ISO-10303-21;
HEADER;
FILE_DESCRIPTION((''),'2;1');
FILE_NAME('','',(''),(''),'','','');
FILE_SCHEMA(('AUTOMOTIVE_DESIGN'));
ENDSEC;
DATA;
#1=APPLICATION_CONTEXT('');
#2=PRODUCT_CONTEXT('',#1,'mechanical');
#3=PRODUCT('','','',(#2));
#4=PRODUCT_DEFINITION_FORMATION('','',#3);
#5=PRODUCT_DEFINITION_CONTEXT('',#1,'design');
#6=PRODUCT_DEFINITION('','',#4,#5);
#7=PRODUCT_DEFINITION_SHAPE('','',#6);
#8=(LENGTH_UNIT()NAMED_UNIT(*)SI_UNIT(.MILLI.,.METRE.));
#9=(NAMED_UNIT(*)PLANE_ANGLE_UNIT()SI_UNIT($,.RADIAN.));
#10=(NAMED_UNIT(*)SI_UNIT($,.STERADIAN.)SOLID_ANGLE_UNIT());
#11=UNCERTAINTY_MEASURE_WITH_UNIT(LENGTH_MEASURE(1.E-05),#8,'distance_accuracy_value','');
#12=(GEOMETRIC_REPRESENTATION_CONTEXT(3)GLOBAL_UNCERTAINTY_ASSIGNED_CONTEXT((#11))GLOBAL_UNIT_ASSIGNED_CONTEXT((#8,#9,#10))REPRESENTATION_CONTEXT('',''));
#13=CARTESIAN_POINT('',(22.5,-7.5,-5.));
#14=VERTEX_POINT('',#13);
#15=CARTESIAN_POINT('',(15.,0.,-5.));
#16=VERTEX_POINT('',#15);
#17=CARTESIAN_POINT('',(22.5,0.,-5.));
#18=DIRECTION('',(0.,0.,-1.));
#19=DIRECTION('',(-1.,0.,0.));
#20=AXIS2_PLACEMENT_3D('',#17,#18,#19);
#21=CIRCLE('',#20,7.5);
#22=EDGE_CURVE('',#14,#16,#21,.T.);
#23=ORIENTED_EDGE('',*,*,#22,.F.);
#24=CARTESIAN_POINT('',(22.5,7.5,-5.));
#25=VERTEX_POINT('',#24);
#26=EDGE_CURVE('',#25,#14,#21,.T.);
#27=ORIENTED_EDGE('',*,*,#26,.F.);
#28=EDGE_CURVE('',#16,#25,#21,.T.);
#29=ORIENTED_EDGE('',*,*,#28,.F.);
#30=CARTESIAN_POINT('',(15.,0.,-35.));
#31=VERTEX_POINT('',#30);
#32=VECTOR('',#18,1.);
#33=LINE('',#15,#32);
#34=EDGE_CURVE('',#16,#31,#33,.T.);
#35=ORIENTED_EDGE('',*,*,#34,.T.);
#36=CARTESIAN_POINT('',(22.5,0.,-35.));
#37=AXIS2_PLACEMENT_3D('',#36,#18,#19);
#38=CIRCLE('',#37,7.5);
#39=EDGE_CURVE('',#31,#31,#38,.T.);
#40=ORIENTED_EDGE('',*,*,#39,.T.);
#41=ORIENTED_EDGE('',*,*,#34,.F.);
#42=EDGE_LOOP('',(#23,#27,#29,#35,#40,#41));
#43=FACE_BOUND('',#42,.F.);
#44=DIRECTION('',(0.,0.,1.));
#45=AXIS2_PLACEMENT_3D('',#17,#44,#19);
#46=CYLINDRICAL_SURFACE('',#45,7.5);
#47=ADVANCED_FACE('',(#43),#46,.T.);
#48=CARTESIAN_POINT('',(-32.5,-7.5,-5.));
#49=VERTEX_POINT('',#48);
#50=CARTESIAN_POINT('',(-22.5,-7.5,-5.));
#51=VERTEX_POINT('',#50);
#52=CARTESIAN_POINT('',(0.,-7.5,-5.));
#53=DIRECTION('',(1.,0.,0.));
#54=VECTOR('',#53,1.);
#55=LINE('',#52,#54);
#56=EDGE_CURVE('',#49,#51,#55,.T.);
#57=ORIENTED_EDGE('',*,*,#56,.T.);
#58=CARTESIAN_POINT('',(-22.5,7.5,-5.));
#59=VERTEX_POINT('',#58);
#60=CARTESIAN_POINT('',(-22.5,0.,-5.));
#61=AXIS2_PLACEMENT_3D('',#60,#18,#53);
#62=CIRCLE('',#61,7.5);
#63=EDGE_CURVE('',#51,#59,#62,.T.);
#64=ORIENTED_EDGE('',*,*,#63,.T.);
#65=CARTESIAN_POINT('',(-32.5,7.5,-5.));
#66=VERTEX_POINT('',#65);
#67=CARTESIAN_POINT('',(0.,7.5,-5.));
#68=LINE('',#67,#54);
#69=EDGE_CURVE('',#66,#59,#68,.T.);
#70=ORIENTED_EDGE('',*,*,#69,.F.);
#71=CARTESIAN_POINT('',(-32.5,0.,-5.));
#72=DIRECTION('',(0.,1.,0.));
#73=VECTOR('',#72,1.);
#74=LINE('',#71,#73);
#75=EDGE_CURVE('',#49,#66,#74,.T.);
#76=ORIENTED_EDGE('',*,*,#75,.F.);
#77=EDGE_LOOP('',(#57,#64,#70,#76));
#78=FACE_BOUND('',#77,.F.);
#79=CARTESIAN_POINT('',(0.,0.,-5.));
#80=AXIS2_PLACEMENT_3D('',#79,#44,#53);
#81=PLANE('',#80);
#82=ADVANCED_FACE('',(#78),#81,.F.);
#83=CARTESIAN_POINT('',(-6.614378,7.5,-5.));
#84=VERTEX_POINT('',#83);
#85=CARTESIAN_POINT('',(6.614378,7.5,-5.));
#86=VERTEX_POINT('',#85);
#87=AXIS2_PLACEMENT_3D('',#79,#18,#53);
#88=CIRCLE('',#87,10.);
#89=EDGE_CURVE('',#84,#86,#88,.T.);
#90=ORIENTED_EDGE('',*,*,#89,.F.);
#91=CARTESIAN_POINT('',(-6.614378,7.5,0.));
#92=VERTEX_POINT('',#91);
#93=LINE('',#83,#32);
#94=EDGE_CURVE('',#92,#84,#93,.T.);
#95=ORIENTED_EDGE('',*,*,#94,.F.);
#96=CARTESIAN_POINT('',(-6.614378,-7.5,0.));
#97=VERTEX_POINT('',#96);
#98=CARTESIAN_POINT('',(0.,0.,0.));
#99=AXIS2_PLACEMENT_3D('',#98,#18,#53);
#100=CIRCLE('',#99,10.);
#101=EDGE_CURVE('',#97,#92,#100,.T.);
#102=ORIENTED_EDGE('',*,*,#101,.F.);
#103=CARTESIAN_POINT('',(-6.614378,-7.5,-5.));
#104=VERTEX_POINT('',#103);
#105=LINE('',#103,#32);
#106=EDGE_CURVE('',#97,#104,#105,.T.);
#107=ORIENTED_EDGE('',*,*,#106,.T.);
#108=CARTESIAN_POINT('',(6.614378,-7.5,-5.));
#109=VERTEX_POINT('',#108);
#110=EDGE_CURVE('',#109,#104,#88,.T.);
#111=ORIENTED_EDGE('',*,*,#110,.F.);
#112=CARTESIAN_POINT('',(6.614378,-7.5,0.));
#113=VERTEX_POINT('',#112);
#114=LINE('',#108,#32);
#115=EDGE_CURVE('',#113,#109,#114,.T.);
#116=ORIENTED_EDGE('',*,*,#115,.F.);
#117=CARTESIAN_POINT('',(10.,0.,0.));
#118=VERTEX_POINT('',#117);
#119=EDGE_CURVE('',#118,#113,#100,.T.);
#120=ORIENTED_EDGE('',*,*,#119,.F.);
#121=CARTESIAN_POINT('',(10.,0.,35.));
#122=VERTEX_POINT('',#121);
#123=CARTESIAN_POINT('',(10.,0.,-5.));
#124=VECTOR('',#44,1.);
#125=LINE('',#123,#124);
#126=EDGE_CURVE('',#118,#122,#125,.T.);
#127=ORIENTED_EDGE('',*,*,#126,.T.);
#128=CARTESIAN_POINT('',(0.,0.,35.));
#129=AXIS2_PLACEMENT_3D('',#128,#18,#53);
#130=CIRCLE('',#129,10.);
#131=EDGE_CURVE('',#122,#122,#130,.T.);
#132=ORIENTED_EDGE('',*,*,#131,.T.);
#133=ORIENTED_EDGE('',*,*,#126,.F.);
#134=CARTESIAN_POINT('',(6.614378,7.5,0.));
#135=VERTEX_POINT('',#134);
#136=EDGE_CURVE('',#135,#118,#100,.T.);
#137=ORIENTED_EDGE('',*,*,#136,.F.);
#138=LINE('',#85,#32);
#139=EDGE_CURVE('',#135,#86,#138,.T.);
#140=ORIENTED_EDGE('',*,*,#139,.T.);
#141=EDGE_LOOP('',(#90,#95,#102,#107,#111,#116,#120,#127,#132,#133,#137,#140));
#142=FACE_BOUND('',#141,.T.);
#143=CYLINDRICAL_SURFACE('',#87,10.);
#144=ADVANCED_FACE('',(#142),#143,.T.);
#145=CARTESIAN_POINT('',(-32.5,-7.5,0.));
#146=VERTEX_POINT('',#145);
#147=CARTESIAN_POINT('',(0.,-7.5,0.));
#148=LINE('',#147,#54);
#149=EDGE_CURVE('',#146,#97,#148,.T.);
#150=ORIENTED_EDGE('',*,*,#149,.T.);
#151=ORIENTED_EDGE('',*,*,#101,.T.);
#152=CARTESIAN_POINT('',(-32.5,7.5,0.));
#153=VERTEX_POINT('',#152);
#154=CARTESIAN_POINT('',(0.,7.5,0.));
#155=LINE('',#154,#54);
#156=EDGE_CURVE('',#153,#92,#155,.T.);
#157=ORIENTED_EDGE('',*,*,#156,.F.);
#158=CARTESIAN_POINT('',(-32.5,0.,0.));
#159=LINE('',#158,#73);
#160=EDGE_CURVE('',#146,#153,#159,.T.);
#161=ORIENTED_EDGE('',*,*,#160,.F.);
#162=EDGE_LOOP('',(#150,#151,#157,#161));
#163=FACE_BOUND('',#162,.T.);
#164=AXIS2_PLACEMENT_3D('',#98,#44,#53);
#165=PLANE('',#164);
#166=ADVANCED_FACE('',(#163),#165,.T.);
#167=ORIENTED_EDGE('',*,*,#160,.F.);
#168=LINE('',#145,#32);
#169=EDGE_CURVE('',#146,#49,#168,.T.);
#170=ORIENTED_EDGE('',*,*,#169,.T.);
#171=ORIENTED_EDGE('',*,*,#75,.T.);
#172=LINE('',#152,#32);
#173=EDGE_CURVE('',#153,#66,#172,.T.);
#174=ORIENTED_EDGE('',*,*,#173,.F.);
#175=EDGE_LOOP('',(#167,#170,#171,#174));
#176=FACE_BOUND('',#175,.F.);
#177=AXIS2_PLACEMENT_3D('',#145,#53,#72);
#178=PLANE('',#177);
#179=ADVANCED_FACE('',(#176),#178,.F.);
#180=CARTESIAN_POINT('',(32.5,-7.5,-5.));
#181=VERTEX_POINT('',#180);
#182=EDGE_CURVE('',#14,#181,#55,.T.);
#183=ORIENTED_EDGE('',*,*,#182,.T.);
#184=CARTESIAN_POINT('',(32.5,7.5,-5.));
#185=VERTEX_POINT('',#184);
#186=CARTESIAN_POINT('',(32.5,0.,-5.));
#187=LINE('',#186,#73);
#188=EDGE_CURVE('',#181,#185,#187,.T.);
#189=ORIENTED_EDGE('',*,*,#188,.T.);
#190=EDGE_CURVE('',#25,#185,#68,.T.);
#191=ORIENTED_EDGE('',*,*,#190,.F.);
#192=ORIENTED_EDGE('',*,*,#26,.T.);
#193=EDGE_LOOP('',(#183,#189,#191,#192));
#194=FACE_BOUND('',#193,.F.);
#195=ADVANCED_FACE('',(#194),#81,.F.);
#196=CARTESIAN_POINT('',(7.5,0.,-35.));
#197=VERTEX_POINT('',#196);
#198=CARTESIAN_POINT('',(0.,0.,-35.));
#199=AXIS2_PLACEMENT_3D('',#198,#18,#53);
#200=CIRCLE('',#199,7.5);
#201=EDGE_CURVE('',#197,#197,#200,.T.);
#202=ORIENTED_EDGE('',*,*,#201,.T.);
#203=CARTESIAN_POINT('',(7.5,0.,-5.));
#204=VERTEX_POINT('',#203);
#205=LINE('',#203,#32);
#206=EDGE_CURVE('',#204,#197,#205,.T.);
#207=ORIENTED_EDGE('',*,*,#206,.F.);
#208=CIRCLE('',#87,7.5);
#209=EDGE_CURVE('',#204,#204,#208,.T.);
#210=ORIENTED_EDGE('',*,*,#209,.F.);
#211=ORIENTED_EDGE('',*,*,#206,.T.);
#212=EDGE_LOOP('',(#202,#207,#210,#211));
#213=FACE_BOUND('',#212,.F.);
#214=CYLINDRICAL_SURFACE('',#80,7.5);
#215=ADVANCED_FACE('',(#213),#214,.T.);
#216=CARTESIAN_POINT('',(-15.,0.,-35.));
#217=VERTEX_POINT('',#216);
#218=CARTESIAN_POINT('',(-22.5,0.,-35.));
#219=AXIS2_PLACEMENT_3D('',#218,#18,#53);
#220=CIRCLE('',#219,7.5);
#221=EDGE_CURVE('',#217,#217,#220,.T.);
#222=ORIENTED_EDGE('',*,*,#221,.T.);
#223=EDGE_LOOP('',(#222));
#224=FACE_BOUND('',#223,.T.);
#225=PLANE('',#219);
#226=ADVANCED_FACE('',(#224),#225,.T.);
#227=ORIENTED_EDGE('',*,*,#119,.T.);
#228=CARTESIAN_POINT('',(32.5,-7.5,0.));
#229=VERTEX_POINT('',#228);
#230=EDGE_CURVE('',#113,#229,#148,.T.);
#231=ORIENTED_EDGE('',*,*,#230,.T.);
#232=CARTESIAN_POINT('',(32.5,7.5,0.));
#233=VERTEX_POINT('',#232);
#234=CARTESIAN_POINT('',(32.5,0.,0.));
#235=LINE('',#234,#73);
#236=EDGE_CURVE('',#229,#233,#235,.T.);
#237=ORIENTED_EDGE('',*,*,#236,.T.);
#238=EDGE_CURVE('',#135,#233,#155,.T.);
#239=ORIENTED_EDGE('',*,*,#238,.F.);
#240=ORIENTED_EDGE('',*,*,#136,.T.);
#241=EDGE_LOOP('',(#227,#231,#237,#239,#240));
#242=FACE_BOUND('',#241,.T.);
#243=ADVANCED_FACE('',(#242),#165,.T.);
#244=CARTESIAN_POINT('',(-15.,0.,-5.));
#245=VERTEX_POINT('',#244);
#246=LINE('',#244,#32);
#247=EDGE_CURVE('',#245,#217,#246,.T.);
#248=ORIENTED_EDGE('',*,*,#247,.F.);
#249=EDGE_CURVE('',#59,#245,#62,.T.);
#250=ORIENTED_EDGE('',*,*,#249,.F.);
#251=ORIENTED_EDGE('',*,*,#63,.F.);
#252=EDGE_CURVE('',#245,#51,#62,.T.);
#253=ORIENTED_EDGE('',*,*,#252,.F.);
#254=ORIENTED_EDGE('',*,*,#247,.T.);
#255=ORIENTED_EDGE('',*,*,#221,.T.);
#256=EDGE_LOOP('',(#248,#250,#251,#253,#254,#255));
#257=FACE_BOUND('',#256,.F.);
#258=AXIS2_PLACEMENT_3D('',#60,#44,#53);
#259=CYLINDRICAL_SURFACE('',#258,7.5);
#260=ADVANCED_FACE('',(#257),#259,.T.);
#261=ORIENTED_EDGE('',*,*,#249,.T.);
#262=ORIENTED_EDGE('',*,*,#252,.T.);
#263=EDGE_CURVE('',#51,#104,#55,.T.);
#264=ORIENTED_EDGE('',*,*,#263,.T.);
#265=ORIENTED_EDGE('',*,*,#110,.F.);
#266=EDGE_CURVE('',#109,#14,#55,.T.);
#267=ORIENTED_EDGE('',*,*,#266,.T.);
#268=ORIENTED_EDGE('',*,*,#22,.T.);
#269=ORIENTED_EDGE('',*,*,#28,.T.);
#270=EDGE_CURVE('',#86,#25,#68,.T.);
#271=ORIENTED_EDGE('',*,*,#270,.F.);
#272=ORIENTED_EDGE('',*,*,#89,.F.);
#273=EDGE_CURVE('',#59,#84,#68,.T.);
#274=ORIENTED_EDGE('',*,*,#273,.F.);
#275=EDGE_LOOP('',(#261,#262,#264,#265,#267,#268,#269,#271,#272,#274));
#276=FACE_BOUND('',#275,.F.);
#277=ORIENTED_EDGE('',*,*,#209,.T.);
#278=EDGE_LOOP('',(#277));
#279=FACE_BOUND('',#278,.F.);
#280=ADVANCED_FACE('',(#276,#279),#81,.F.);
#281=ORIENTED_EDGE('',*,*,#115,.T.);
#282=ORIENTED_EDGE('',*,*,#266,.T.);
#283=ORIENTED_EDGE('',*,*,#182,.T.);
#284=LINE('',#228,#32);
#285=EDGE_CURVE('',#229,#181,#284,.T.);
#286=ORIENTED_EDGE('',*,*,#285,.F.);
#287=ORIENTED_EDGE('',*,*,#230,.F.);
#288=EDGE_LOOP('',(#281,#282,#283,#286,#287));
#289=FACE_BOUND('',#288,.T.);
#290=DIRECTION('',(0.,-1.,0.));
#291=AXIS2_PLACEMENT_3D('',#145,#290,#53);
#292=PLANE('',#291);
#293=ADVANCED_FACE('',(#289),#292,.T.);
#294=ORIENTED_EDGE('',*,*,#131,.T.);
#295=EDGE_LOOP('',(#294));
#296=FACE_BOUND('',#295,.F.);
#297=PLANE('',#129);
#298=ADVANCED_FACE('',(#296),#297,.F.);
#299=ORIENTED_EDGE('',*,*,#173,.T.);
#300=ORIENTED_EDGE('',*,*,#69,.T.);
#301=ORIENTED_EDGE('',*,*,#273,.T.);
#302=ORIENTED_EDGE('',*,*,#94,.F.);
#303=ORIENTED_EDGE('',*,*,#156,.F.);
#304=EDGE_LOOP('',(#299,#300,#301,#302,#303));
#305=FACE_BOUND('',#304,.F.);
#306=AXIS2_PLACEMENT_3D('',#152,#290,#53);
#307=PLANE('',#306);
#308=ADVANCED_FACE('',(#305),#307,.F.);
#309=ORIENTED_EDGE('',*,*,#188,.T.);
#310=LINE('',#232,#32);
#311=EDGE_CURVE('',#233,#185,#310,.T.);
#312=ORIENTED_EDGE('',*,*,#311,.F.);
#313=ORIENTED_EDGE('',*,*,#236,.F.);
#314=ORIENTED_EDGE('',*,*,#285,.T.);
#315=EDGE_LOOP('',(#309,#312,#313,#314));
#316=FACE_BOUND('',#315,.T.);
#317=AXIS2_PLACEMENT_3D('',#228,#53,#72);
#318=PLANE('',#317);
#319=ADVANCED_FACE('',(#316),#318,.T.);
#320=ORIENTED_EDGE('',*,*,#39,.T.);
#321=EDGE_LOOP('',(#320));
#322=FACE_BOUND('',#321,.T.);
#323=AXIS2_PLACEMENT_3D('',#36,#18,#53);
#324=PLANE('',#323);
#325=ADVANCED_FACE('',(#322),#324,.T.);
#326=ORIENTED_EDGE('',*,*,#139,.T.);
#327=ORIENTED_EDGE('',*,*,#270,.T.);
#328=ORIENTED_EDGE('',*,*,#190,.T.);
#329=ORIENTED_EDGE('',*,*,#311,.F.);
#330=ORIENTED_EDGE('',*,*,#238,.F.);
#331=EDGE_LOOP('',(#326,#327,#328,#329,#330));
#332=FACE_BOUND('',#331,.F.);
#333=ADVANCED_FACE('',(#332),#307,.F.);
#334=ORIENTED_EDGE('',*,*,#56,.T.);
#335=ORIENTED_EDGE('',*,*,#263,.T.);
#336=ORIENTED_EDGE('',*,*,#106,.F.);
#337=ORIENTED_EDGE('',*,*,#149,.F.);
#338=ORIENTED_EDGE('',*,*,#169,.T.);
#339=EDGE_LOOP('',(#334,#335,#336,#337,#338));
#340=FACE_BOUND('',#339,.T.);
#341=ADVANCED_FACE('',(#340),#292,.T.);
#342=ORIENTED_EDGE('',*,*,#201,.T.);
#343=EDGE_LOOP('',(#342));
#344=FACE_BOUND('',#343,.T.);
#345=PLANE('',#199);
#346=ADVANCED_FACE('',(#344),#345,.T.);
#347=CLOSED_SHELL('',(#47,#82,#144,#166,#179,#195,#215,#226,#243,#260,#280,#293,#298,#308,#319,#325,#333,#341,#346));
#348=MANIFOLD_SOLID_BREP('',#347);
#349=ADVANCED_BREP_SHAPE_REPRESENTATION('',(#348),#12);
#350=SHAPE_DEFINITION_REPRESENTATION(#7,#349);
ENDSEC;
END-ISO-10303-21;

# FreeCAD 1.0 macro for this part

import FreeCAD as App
import Part
import Sketcher

V = App.Vector
Q = App.Units.Quantity


def add_polygon(sketch, points):
    """Adds a closed chain of lines whose ends are joined by coincident constraints."""
    first, n = sketch.GeometryCount, len(points)
    for a, b in zip(points, points[1:] + points[:1]):
        sketch.addGeometry(Part.LineSegment(App.Vector(*a, 0), App.Vector(*b, 0)), False)
    for i in range(n):
        sketch.addConstraint(Sketcher.Constraint("Coincident", first + i, 2, first + (i + 1) % n, 1))

doc = App.newDocument("Part")
params = doc.addObject("Spreadsheet::Sheet", "Params")
for row, (alias, value) in enumerate([
    ("sketch1_width", "65 mm"),
    ("sketch1_height", "15 mm"),
    ("pad1_length", "5 mm"),
    ("sketch2_diameter", "20 mm"),
    ("pad2_length", "40 mm"),
    ("sketch3_diameter", "15 mm"),
    ("pad3_length", "30 mm"),
], start=1):
    params.set(f"A{row}", alias)
    params.set(f"B{row}", "=" + value)
    params.setAlias(f"B{row}", alias)

body = doc.addObject("PartDesign::Body", "Body")

# Sketch on XY plane
sketch1 = doc.addObject("Sketcher::SketchObject", "Sketch")
body.addObject(sketch1)
sketch1.AttachmentSupport = (doc.XY_Plane, [""])
sketch1.MapMode = "FlatFace"
add_polygon(sketch1, [(-32.5, 7.5), (-32.5, -7.5), (32.5, -7.5), (32.5, 7.5)])  # lines 0-3
sketch1.addConstraint(Sketcher.Constraint("Vertical", 0))
sketch1.addConstraint(Sketcher.Constraint("Horizontal", 1))
sketch1.addConstraint(Sketcher.Constraint("Vertical", 2))
sketch1.addConstraint(Sketcher.Constraint("Horizontal", 3))
sketch1.addConstraint(Sketcher.Constraint("Symmetric", 0, 2, 2, 2, -1, 1))
sketch1.addConstraint(Sketcher.Constraint("DistanceX", 1, 1, 1, 2, Q("65 mm")))
sketch1.addConstraint(Sketcher.Constraint("DistanceY", 0, 2, 0, 1, Q("15 mm")))
sketch1.setExpression("Constraints[9]", "Params.sketch1_width")
sketch1.setExpression("Constraints[10]", "Params.sketch1_height")
pad1 = doc.addObject("PartDesign::Pad", "Pad")
body.addObject(pad1)
pad1.Profile = sketch1
pad1.setExpression("Length", "Params.pad1_length")
pad1.Reversed = True

# Sketch on XY plane
sketch2 = doc.addObject("Sketcher::SketchObject", "Sketch001")
body.addObject(sketch2)
sketch2.AttachmentSupport = (doc.XY_Plane, [""])
sketch2.MapMode = "FlatFace"
sketch2.AttachmentOffset = App.Placement(V(0, 0, -5), App.Rotation())
sketch2.addGeometry(Part.Circle(V(0, 0, 0), V(0, 0, 1), 10), False)
sketch2.addConstraint(Sketcher.Constraint("Coincident", 0, 3, -1, 1))
sketch2.addConstraint(Sketcher.Constraint("Diameter", 0, Q("20 mm")))
sketch2.setExpression("Constraints[1]", "Params.sketch2_diameter")
pad2 = doc.addObject("PartDesign::Pad", "Pad001")
body.addObject(pad2)
pad2.Profile = sketch2
pad2.setExpression("Length", "Params.pad2_length")

# Sketch on XY plane
sketch3 = doc.addObject("Sketcher::SketchObject", "Sketch002")
body.addObject(sketch3)
sketch3.AttachmentSupport = (doc.XY_Plane, [""])
sketch3.MapMode = "FlatFace"
sketch3.AttachmentOffset = App.Placement(V(0, 0, -5), App.Rotation())
sketch3.addGeometry(Part.Circle(V(0, 0, 0), V(0, 0, 1), 7.5), False)
sketch3.addGeometry(Part.Circle(V(-22.5, 0, 0), V(0, 0, 1), 7.5), False)
sketch3.addGeometry(Part.Circle(V(22.5, 0, 0), V(0, 0, 1), 7.5), False)
sketch3.addConstraint(Sketcher.Constraint("Coincident", 0, 3, -1, 1))
sketch3.addConstraint(Sketcher.Constraint("Equal", 0, 1))
sketch3.addConstraint(Sketcher.Constraint("Equal", 1, 2))
sketch3.addConstraint(Sketcher.Constraint("Symmetric", 1, 3, 2, 3, -1, 1))
sketch3.addConstraint(Sketcher.Constraint("PointOnObject", 1, 3, -1))
sketch3.addConstraint(Sketcher.Constraint("Diameter", 0, Q("15 mm")))
sketch3.addConstraint(Sketcher.Constraint("DistanceX", 1, 3, 2, 3, Q("45 mm")))
sketch3.setExpression("Constraints[5]", "Params.sketch3_diameter")
pad3 = doc.addObject("PartDesign::Pad", "Pad002")
body.addObject(pad3)
pad3.Profile = sketch3
pad3.setExpression("Length", "Params.pad3_length")
pad3.Reversed = True

doc.recompute()
